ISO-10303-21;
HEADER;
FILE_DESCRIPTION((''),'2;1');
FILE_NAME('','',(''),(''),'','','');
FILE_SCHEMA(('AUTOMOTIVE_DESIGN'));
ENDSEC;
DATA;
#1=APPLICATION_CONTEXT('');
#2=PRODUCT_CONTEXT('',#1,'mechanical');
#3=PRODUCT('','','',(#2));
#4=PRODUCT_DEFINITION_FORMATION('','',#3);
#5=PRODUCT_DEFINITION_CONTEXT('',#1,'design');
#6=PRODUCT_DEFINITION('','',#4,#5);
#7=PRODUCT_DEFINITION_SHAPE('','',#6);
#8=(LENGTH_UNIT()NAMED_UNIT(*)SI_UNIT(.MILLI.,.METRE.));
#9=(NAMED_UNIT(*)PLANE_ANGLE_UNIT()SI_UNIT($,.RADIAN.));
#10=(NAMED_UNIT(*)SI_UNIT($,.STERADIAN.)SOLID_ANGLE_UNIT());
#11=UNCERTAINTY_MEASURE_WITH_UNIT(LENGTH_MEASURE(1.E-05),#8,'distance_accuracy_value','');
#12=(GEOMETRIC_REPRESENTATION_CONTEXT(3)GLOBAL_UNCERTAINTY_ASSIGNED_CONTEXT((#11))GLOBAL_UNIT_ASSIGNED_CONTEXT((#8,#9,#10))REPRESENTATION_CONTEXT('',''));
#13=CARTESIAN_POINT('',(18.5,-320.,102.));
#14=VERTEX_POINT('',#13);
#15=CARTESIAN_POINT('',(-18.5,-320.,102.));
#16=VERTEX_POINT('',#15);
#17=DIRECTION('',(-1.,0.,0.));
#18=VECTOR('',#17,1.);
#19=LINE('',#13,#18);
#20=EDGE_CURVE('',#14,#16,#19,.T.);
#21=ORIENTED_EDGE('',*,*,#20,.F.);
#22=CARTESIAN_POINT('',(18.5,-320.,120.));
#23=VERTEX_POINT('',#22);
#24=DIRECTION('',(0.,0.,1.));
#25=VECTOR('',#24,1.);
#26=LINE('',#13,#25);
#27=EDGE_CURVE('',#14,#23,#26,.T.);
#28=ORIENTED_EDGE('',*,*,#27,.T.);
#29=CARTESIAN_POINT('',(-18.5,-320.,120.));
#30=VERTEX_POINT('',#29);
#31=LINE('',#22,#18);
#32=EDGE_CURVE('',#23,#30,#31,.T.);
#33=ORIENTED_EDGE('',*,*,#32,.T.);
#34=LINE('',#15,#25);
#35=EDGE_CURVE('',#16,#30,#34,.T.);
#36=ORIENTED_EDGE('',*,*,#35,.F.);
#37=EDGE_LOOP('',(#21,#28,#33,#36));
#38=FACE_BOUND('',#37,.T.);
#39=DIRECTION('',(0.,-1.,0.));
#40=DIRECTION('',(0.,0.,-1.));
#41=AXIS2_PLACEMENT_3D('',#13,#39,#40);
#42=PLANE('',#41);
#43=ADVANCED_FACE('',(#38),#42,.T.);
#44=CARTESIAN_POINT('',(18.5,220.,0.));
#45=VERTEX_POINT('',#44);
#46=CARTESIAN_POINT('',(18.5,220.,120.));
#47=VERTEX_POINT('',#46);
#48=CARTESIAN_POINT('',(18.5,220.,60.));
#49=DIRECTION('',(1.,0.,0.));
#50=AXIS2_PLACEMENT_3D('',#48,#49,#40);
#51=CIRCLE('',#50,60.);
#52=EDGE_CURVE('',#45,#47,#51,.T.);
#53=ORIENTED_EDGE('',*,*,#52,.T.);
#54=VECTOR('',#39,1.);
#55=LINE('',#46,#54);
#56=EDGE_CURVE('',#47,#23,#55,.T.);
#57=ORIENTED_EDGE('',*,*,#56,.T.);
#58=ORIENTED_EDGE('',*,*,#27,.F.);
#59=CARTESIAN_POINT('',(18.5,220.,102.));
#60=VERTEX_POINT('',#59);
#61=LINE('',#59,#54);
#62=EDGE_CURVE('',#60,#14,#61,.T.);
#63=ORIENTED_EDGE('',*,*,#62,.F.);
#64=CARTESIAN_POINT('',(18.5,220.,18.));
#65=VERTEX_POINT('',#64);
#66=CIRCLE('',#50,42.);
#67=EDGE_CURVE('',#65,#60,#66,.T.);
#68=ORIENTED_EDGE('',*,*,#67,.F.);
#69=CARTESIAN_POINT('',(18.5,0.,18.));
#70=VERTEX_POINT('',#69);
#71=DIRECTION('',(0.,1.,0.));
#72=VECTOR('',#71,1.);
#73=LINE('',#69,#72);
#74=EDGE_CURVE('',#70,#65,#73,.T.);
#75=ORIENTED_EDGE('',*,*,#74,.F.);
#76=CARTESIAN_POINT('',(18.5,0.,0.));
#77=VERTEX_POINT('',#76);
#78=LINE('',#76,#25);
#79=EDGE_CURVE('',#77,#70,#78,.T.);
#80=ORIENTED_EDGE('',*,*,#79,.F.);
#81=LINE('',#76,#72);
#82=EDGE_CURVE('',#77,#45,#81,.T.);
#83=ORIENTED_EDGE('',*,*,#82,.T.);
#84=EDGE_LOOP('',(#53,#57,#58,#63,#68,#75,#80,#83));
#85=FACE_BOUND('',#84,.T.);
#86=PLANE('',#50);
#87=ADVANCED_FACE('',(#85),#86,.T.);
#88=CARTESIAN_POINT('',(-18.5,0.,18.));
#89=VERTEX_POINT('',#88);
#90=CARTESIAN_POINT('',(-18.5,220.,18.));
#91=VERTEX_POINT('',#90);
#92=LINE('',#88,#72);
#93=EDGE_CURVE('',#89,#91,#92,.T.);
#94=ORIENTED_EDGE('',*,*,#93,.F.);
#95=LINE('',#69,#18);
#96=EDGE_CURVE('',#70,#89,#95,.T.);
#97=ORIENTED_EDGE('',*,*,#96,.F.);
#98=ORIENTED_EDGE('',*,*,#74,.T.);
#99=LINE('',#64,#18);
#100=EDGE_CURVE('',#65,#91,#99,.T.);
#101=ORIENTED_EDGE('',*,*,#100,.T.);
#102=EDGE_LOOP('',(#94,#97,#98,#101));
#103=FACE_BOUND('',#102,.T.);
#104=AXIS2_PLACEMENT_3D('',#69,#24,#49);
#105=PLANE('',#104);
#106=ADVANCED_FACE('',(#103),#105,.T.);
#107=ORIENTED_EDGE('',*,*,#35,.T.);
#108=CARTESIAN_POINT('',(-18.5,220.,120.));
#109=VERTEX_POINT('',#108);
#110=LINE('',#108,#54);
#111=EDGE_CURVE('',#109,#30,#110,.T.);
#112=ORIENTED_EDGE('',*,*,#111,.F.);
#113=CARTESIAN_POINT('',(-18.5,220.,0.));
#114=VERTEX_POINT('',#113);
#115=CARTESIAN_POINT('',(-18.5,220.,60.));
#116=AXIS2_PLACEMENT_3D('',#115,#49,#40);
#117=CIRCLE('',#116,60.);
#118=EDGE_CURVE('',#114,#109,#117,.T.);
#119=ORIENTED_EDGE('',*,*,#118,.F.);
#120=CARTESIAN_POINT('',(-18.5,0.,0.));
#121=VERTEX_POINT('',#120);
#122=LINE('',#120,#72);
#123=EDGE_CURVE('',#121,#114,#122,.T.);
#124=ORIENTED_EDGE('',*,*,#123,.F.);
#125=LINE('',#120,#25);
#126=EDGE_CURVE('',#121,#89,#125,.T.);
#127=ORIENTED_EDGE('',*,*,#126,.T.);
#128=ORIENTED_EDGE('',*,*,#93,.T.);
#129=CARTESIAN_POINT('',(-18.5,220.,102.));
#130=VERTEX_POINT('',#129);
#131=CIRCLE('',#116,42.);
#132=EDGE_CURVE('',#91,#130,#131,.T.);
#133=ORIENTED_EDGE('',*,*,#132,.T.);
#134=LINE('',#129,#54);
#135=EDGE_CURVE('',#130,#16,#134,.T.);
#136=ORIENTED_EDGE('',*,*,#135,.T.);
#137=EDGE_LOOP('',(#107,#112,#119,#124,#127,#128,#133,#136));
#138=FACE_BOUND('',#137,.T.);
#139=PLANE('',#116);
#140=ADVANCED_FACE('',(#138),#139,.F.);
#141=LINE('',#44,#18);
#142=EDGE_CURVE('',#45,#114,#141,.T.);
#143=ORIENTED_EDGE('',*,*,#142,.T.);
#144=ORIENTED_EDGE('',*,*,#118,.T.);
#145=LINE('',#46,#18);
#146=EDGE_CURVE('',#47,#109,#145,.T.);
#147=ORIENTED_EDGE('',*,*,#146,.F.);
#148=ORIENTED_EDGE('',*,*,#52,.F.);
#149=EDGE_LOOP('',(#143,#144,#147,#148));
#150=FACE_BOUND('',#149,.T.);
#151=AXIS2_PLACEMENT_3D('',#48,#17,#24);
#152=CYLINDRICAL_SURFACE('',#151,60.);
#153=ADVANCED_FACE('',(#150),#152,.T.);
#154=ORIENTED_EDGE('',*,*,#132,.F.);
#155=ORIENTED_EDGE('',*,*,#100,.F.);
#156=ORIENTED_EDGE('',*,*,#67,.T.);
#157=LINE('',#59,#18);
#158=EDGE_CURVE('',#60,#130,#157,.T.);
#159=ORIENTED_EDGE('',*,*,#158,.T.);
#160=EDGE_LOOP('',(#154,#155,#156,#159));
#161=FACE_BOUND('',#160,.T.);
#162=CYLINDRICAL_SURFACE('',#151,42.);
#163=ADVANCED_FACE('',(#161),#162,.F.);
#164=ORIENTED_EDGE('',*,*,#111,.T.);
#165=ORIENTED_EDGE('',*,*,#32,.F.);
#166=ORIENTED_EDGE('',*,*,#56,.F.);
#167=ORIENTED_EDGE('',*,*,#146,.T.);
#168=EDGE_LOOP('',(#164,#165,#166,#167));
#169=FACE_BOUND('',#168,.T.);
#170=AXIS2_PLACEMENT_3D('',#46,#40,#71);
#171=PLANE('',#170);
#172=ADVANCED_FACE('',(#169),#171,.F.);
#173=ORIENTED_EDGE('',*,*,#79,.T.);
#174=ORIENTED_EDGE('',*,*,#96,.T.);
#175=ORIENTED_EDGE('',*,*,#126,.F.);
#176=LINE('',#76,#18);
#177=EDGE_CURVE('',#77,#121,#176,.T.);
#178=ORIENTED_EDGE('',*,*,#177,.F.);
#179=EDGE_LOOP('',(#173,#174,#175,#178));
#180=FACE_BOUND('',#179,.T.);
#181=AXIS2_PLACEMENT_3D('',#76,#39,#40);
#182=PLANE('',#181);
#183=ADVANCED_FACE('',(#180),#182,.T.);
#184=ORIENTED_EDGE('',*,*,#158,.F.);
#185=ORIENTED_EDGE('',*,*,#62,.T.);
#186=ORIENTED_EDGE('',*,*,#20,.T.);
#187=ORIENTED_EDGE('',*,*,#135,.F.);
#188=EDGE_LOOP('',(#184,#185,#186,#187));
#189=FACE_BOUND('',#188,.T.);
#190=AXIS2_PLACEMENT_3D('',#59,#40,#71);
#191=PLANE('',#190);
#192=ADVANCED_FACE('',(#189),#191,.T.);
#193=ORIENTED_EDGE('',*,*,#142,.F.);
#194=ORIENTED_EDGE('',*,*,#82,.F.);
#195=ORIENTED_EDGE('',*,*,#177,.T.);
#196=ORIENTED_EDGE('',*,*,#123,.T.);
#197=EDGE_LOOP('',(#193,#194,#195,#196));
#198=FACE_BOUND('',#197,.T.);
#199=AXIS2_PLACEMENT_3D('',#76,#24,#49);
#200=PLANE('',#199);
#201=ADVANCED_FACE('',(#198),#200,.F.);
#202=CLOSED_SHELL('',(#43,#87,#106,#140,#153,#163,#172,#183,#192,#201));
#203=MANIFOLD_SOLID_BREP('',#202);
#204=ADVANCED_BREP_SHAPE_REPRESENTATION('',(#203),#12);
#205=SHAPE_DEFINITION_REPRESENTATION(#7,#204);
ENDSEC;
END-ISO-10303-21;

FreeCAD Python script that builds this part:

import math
import FreeCAD as App
import Part
import Sketcher

V = App.Vector

doc = App.newDocument("Part")
body = doc.addObject("PartDesign::Body", "Body")

sketch1 = doc.addObject("Sketcher::SketchObject", "Sketch")
body.addObject(sketch1)
sketch1.AttachmentSupport = (doc.YZ_Plane, [""])
sketch1.MapMode = "FlatFace"
sketch1.addGeometry([
    Part.LineSegment(V(0, 0, 0), V(220, 0, 0)),
    Part.ArcOfCircle(Part.Circle(V(220, 60, 0), V(0, 0, 1), 60), math.radians(-90), math.radians(90)),
    Part.LineSegment(V(220, 120, 0), V(-320, 120, 0)),
    Part.LineSegment(V(-320, 120, 0), V(-320, 102, 0)),
    Part.LineSegment(V(-320, 102, 0), V(220, 102, 0)),
    Part.ArcOfCircle(Part.Circle(V(220, 60, 0), V(0, 0, 1), 42), math.radians(-90), math.radians(90)),
    Part.LineSegment(V(220, 18, 0), V(0, 18, 0)),
    Part.LineSegment(V(0, 18, 0), V(0, 0, 0)),
], False)
sketch1.addConstraint([
    Sketcher.Constraint("Tangent", 0, 2, 1, 1),
    Sketcher.Constraint("Tangent", 1, 2, 2, 1),
    Sketcher.Constraint("Coincident", 2, 2, 3, 1),
    Sketcher.Constraint("Coincident", 3, 2, 4, 1),
    Sketcher.Constraint("Tangent", 4, 2, 5, 2),
    Sketcher.Constraint("Tangent", 5, 1, 6, 1),
    Sketcher.Constraint("Coincident", 6, 2, 7, 1),
    Sketcher.Constraint("Coincident", 7, 2, 0, 1),
    Sketcher.Constraint("Horizontal", 0),
    Sketcher.Constraint("Horizontal", 2),
    Sketcher.Constraint("Vertical", 3),
    Sketcher.Constraint("Horizontal", 4),
    Sketcher.Constraint("Horizontal", 6),
    Sketcher.Constraint("Vertical", 7),
    Sketcher.Constraint("Coincident", 7, 2, -1, 1),
    Sketcher.Constraint("Coincident", 5, 3, 1, 3),
    Sketcher.Constraint("Radius", 1, 60.0),
    Sketcher.Constraint("Radius", 5, 42.0),
    Sketcher.Constraint("DistanceX", 0, 1, 0, 2, 220.0),
    Sketcher.Constraint("DistanceX", 2, 2, 2, 1, 540.0),
])
pad1 = doc.addObject("PartDesign::Pad", "Pad")
body.addObject(pad1)
pad1.Profile = sketch1
pad1.Length = 37
pad1.Midplane = True

doc.recompute()
